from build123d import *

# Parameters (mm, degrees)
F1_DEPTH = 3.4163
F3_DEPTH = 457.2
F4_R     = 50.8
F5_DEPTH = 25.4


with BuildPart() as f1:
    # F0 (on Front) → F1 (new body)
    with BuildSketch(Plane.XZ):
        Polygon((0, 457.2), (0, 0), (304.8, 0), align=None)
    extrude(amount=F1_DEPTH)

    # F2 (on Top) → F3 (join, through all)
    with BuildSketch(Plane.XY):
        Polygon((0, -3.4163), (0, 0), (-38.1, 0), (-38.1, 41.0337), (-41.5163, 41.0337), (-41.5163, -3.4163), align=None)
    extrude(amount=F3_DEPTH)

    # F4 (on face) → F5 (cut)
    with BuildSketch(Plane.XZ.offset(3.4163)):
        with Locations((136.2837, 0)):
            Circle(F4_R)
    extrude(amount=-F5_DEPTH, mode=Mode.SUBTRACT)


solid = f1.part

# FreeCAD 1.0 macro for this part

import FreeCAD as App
import Part
import Sketcher
from FreeCAD import Vector
Q = App.Units.Quantity

doc = App.newDocument("Part")
body = doc.addObject("PartDesign::Body", "Body")

sketch1 = body.newObject("Sketcher::SketchObject", "Sketch")
sketch1.AttachmentSupport = (doc.getObject("XZ_Plane"), [""])
sketch1.MapMode = "FlatFace"
sketch1.addGeometry(Part.LineSegment(Vector(0, 457.2, 0), Vector(0, 0, 0)), False)
sketch1.addGeometry(Part.LineSegment(Vector(0, 0, 0), Vector(304.8, 0, 0)), False)
sketch1.addGeometry(Part.LineSegment(Vector(304.8, 0, 0), Vector(0, 457.2, 0)), False)
sketch1.addConstraint(Sketcher.Constraint("Coincident", 0, 2, 1, 1))
sketch1.addConstraint(Sketcher.Constraint("Coincident", 1, 2, 2, 1))
sketch1.addConstraint(Sketcher.Constraint("Coincident", 2, 2, 0, 1))
sketch1.addConstraint(Sketcher.Constraint("Vertical", 0))
sketch1.addConstraint(Sketcher.Constraint("Horizontal", 1))
sketch1.addConstraint(Sketcher.Constraint("Coincident", 0, 2, -1, 1))
sketch1.addConstraint(Sketcher.Constraint("DistanceX", 1, 1, 1, 2, Q("12 in")))
sketch1.addConstraint(Sketcher.Constraint("DistanceY", 0, 2, 0, 1, Q("18 in")))
pad1 = body.newObject("PartDesign::Pad", "Pad")
pad1.Profile = sketch1
pad1.Length = Q("0.1345 in")

sketch2 = body.newObject("Sketcher::SketchObject", "Sketch001")
sketch2.AttachmentSupport = (doc.getObject("XY_Plane"), [""])
sketch2.MapMode = "FlatFace"
sketch2.addGeometry(Part.LineSegment(Vector(0, -3.4163, 0), Vector(0, 0, 0)), False)
sketch2.addGeometry(Part.LineSegment(Vector(0, 0, 0), Vector(-38.1, 0, 0)), False)
sketch2.addGeometry(Part.LineSegment(Vector(-38.1, 0, 0), Vector(-38.1, 41.0337, 0)), False)
sketch2.addGeometry(Part.LineSegment(Vector(-38.1, 41.0337, 0), Vector(-41.5163, 41.0337, 0)), False)
sketch2.addGeometry(Part.LineSegment(Vector(-41.5163, 41.0337, 0), Vector(-41.5163, -3.4163, 0)), False)
sketch2.addGeometry(Part.LineSegment(Vector(-41.5163, -3.4163, 0), Vector(0, -3.4163, 0)), False)
sketch2.addConstraint(Sketcher.Constraint("Coincident", 0, 2, 1, 1))
sketch2.addConstraint(Sketcher.Constraint("Coincident", 1, 2, 2, 1))
sketch2.addConstraint(Sketcher.Constraint("Coincident", 2, 2, 3, 1))
sketch2.addConstraint(Sketcher.Constraint("Coincident", 3, 2, 4, 1))
sketch2.addConstraint(Sketcher.Constraint("Coincident", 4, 2, 5, 1))
sketch2.addConstraint(Sketcher.Constraint("Coincident", 5, 2, 0, 1))
sketch2.addConstraint(Sketcher.Constraint("Vertical", 0))
sketch2.addConstraint(Sketcher.Constraint("Horizontal", 1))
sketch2.addConstraint(Sketcher.Constraint("Vertical", 2))
sketch2.addConstraint(Sketcher.Constraint("Horizontal", 3))
sketch2.addConstraint(Sketcher.Constraint("Vertical", 4))
sketch2.addConstraint(Sketcher.Constraint("Horizontal", 5))
sketch2.addConstraint(Sketcher.Constraint("Coincident", 0, 2, -1, 1))
sketch2.addConstraint(Sketcher.Constraint("Equal", 3, 0))
sketch2.addConstraint(Sketcher.Constraint("DistanceX", 1, 2, 1, 1, Q("1.5 in")))
sketch2.addConstraint(Sketcher.Constraint("DistanceY", 4, 2, 4, 1, Q("1.75 in")))
sketch2.addConstraint(Sketcher.Constraint("DistanceX", 3, 2, 3, 1, Q("0.1345 in")))
pad2 = body.newObject("PartDesign::Pad", "Pad001")
pad2.Profile = sketch2
pad2.Length = Q("18 in")

sketch3 = body.newObject("Sketcher::SketchObject", "Sketch002")
sketch3.AttachmentSupport = (doc.getObject("XZ_Plane"), [""])
sketch3.MapMode = "FlatFace"
sketch3.AttachmentOffset = App.Placement(Vector(0, 0, 0.1345 * 25.4), App.Rotation())
sketch3.addGeometry(Part.Circle(Vector(136.2837, 0, 0), Vector(0, 0, 1), 50.8), False)
sketch3.addConstraint(Sketcher.Constraint("PointOnObject", 0, 3, -1))
sketch3.addConstraint(Sketcher.Constraint("Diameter", 0, Q("4 in")))
sketch3.addConstraint(Sketcher.Constraint("DistanceX", -1, 1, 0, 3, Q("5.3655 in")))
pocket1 = body.newObject("PartDesign::Pocket", "Pocket")
pocket1.Profile = sketch3
pocket1.Length = Q("1 in")

doc.recompute()
